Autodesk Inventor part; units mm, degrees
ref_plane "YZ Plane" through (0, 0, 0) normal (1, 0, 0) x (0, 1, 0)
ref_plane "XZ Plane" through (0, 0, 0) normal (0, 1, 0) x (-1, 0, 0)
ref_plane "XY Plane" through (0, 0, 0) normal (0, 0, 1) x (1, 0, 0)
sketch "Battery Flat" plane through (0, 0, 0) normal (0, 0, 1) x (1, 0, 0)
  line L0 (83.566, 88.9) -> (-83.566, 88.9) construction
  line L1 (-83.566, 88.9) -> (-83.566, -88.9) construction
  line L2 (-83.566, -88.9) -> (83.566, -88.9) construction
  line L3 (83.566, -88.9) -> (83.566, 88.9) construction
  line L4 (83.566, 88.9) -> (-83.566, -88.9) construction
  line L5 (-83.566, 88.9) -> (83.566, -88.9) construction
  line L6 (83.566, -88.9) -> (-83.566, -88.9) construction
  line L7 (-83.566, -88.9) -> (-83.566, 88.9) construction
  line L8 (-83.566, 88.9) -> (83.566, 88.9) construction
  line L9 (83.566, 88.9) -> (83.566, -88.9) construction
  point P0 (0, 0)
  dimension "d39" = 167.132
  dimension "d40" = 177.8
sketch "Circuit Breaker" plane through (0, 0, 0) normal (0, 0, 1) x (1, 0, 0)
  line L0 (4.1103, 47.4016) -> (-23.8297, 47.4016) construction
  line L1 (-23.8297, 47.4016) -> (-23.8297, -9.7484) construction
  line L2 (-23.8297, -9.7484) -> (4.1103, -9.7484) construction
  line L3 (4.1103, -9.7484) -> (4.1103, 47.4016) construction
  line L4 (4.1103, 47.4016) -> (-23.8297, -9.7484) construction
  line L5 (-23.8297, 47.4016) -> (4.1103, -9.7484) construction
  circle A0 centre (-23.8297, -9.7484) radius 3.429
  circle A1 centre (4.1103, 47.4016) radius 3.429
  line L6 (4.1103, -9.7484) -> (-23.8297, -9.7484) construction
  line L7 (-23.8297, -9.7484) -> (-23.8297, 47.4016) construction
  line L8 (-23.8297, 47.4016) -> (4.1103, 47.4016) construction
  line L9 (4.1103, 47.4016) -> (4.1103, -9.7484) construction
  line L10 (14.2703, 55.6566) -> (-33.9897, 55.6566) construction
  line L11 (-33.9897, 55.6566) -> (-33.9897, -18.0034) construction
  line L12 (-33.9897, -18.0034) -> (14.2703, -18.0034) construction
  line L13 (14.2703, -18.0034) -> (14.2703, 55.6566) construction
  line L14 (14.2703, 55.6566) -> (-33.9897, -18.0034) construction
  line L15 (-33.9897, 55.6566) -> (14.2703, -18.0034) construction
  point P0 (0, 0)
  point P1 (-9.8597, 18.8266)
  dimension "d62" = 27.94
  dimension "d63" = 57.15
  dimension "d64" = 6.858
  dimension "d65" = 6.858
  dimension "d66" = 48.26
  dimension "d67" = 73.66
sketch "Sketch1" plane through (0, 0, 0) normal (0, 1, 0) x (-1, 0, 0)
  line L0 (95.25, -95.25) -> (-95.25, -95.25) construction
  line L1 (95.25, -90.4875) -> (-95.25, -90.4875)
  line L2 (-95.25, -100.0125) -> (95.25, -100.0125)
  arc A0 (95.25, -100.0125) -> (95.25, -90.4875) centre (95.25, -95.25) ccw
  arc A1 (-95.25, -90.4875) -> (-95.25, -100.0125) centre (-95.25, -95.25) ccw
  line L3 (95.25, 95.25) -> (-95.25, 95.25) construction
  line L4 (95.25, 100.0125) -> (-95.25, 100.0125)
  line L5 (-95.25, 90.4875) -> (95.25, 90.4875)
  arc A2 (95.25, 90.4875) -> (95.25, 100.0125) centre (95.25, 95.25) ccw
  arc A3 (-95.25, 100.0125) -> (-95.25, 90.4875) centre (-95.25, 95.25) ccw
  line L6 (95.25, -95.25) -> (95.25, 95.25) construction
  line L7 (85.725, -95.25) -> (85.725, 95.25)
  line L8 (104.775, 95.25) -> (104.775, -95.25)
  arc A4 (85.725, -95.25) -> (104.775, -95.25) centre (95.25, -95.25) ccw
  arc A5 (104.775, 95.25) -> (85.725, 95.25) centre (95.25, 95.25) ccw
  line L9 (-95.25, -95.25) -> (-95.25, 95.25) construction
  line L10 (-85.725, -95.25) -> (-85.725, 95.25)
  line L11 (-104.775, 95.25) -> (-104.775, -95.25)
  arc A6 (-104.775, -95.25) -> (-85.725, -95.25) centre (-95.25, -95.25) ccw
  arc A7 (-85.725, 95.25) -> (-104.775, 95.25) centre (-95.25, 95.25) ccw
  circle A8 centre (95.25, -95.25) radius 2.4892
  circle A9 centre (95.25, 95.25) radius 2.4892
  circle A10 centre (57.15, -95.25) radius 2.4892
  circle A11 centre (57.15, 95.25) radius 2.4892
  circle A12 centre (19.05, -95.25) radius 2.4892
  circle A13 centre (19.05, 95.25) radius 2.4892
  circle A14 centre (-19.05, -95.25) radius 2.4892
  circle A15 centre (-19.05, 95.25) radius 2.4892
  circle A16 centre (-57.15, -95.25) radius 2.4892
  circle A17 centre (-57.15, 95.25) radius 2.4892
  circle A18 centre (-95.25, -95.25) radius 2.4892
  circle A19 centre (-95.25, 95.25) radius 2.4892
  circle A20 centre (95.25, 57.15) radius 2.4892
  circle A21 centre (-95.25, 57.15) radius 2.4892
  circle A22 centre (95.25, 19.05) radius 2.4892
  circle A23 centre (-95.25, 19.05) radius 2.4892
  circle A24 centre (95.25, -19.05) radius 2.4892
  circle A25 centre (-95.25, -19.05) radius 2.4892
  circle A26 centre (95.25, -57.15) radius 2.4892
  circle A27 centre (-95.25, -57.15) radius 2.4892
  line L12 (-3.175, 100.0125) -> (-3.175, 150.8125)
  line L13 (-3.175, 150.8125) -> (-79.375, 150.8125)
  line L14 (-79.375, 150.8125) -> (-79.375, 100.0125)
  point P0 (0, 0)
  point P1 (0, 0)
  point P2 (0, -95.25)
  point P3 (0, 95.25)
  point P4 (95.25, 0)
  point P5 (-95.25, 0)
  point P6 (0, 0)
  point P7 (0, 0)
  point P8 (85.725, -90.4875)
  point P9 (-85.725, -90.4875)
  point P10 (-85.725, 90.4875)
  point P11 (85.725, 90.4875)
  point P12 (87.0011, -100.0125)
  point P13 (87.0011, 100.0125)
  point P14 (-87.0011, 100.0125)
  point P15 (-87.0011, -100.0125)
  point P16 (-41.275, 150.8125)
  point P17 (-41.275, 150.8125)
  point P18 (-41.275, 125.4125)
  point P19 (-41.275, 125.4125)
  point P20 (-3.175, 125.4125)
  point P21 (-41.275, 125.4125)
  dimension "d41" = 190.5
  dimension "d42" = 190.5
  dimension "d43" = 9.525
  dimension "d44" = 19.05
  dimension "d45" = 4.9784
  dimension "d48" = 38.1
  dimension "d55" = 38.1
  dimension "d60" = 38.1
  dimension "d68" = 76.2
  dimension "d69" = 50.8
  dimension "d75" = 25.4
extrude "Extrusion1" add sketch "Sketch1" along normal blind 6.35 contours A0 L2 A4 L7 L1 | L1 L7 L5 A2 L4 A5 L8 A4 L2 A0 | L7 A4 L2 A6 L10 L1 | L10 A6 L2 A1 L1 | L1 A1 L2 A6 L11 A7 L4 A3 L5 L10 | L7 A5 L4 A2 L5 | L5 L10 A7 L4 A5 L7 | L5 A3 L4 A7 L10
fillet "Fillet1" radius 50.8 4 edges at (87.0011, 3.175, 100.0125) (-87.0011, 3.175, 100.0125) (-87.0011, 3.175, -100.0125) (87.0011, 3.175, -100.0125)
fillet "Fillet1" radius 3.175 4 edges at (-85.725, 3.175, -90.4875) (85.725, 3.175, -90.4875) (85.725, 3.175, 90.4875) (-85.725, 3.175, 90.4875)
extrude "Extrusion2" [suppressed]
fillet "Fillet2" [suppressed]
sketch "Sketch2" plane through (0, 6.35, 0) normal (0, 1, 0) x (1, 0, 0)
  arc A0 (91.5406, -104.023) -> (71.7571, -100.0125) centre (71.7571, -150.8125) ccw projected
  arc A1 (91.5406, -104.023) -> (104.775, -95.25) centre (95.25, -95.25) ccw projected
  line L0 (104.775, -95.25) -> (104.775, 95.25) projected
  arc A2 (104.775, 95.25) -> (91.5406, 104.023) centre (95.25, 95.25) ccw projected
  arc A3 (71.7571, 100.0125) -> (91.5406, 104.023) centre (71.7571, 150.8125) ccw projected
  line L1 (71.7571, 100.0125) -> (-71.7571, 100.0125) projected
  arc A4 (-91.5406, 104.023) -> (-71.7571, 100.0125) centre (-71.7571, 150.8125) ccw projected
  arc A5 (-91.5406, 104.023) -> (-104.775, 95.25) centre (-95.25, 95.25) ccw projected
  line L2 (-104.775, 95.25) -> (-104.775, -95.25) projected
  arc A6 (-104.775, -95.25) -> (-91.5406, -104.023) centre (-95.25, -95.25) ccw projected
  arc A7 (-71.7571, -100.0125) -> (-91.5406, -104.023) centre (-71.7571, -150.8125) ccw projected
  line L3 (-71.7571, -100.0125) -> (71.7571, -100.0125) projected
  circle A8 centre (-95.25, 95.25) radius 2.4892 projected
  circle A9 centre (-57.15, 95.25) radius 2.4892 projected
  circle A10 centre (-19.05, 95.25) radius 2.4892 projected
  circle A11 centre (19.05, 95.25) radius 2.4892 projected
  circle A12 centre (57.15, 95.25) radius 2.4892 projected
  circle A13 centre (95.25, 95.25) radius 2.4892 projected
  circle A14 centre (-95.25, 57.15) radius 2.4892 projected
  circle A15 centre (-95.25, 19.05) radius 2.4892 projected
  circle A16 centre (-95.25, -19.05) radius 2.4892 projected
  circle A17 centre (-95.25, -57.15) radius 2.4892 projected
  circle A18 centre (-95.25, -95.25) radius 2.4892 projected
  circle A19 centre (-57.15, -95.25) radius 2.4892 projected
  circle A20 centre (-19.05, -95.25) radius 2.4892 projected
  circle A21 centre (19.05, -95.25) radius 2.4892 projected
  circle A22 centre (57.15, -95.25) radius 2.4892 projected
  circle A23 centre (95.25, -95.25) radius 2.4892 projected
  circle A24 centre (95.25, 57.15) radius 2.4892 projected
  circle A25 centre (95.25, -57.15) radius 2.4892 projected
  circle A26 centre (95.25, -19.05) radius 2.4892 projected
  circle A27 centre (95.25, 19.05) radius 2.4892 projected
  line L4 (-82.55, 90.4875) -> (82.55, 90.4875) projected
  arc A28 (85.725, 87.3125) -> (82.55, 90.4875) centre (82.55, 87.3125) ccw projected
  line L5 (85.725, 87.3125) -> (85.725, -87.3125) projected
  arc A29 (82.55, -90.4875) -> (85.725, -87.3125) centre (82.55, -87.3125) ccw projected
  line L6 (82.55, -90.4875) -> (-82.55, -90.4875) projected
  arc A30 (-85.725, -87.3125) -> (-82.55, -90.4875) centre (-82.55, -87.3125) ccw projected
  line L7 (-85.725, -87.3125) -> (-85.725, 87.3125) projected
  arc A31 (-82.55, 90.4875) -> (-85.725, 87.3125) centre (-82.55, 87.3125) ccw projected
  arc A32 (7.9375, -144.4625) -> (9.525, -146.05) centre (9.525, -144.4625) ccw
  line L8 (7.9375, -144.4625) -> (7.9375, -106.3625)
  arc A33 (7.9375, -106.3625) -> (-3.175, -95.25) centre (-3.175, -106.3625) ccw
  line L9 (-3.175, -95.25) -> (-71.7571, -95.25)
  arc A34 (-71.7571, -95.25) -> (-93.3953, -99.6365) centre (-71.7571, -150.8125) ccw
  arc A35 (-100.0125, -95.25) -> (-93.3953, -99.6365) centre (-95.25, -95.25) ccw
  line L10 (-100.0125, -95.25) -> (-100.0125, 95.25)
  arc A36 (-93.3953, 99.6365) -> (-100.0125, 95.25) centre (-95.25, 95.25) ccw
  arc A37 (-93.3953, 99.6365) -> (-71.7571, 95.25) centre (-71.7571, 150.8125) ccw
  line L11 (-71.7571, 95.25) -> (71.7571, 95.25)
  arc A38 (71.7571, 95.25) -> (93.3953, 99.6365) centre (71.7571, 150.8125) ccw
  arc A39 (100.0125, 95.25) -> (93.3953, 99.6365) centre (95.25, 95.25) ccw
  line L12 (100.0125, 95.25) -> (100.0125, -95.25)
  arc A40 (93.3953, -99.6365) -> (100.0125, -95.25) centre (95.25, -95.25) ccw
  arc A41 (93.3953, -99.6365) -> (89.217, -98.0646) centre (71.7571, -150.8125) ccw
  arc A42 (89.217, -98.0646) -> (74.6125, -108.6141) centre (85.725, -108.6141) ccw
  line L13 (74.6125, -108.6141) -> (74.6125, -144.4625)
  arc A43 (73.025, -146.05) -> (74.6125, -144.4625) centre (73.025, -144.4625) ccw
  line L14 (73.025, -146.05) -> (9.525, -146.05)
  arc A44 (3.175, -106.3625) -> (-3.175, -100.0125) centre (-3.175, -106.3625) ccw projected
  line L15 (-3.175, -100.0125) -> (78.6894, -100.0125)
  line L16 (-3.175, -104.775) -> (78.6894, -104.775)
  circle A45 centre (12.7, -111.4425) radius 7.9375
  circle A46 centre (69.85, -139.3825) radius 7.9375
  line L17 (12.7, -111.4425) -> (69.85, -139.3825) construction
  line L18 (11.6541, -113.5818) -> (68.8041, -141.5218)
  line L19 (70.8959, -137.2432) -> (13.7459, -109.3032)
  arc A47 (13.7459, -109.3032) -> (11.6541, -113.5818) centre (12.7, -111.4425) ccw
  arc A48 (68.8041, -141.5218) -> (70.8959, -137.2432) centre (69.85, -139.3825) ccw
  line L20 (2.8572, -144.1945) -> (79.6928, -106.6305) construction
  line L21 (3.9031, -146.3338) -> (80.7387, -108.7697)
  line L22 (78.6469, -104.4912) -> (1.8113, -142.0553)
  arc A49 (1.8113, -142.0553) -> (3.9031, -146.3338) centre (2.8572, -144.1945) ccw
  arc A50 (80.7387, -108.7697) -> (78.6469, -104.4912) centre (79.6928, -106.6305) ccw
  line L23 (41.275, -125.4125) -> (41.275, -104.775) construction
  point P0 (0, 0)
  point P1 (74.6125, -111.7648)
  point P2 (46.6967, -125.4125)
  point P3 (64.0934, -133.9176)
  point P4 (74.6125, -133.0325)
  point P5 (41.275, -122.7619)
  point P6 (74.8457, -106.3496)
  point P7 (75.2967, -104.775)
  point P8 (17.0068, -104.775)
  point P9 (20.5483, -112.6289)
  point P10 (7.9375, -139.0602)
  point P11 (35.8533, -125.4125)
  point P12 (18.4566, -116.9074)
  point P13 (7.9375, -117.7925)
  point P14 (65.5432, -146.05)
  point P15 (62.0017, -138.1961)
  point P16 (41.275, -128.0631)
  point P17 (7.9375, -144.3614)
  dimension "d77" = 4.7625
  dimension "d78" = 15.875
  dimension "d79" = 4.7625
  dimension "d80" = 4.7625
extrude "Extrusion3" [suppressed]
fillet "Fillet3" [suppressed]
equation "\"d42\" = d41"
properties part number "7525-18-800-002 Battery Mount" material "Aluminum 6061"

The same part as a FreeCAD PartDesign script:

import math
import FreeCAD as App
import Part
import Sketcher
from FreeCAD import Vector
Q = App.Units.Quantity


def edges_at(feature, points):
    """Names of the edges that pass closest to the given points."""
    edges = feature.Shape.Edges
    near = lambda p: min(range(len(edges)), key=lambda i: edges[i].distToShape(Part.Vertex(*p))[0])
    return sorted({f"Edge{near(p) + 1}" for p in points})

doc = App.newDocument("Part")
body = doc.addObject("PartDesign::Body", "Body")

sketch1 = body.newObject("Sketcher::SketchObject", "Sketch")
sketch1.AttachmentSupport = (doc.getObject("XZ_Plane"), [""])
sketch1.MapMode = "FlatFace"
sketch1.addGeometry([
    Part.ArcOfCircle(Part.Circle(Vector(-95.2, 95.2, 0), Vector(0, 0, 1), 9.5), math.radians(30), math.radians(180)),
    Part.LineSegment(Vector(-87, 100, 0), Vector(87, 100, 0)),
    Part.ArcOfCircle(Part.Circle(Vector(95.2, 95.2, 0), Vector(0, 0, 1), 9.5), math.radians(0), math.radians(150)),
    Part.LineSegment(Vector(104.8, 95.2, 0), Vector(104.8, -95.2, 0)),
    Part.ArcOfCircle(Part.Circle(Vector(95.2, -95.2, 0), Vector(0, 0, 1), 9.5), math.radians(-150), math.radians(0)),
    Part.LineSegment(Vector(87, -100, 0), Vector(-87, -100, 0)),
    Part.ArcOfCircle(Part.Circle(Vector(-95.2, -95.2, 0), Vector(0, 0, 1), 9.5), math.radians(180), math.radians(330)),
    Part.LineSegment(Vector(-104.8, -95.2, 0), Vector(-104.8, 95.2, 0)),
    Part.Circle(Vector(-95.2, -95.2, 0), Vector(0, 0, 1), 2.5),
    Part.Circle(Vector(-95.2, -19.1, 0), Vector(0, 0, 1), 2.5),
    Part.LineSegment(Vector(-85.7, 90.5, 0), Vector(-85.7, -90.5, 0)),
    Part.LineSegment(Vector(-85.7, -90.5, 0), Vector(85.7, -90.5, 0)),
    Part.LineSegment(Vector(85.7, -90.5, 0), Vector(85.7, 90.5, 0)),
    Part.LineSegment(Vector(85.7, 90.5, 0), Vector(-85.7, 90.5, 0)),
    Part.Circle(Vector(-95.2, 19.1, 0), Vector(0, 0, 1), 2.5),
    Part.Circle(Vector(-95.2, 57.1, 0), Vector(0, 0, 1), 2.5),
    Part.Circle(Vector(-95.2, -57.1, 0), Vector(0, 0, 1), 2.5),
    Part.Circle(Vector(-19.1, -95.2, 0), Vector(0, 0, 1), 2.5),
    Part.Circle(Vector(-57.1, -95.2, 0), Vector(0, 0, 1), 2.5),
    Part.Circle(Vector(57.1, -95.2, 0), Vector(0, 0, 1), 2.5),
    Part.Circle(Vector(19.1, -95.2, 0), Vector(0, 0, 1), 2.5),
    Part.Circle(Vector(-95.2, 95.2, 0), Vector(0, 0, 1), 2.5),
    Part.Circle(Vector(95.2, -95.2, 0), Vector(0, 0, 1), 2.5),
    Part.Circle(Vector(-19.1, 95.2, 0), Vector(0, 0, 1), 2.5),
    Part.Circle(Vector(-57.1, 95.2, 0), Vector(0, 0, 1), 2.5),
    Part.Circle(Vector(57.1, 95.2, 0), Vector(0, 0, 1), 2.5),
    Part.Circle(Vector(19.1, 95.2, 0), Vector(0, 0, 1), 2.5),
    Part.Circle(Vector(95.2, 57.1, 0), Vector(0, 0, 1), 2.5),
    Part.Circle(Vector(95.2, -19.1, 0), Vector(0, 0, 1), 2.5),
    Part.Circle(Vector(95.2, 19.1, 0), Vector(0, 0, 1), 2.5),
    Part.Circle(Vector(95.2, -57.1, 0), Vector(0, 0, 1), 2.5),
    Part.Circle(Vector(95.2, 95.2, 0), Vector(0, 0, 1), 2.5),
], False)
sketch1.addConstraint([
    Sketcher.Constraint("Coincident", 0, 1, 1, 1),
    Sketcher.Constraint("Coincident", 1, 2, 2, 2),
    Sketcher.Constraint("Tangent", 2, 1, 3, 1),
    Sketcher.Constraint("Tangent", 3, 2, 4, 2),
    Sketcher.Constraint("Coincident", 4, 1, 5, 1),
    Sketcher.Constraint("Coincident", 5, 2, 6, 2),
    Sketcher.Constraint("Tangent", 6, 1, 7, 1),
    Sketcher.Constraint("Tangent", 7, 2, 0, 2),
    Sketcher.Constraint("Coincident", 10, 2, 11, 1),
    Sketcher.Constraint("Coincident", 11, 2, 12, 1),
    Sketcher.Constraint("Coincident", 12, 2, 13, 1),
    Sketcher.Constraint("Coincident", 13, 2, 10, 1),
    Sketcher.Constraint("Horizontal", 1),
    Sketcher.Constraint("Vertical", 3),
    Sketcher.Constraint("Horizontal", 5),
    Sketcher.Constraint("Vertical", 7),
    Sketcher.Constraint("Vertical", 10),
    Sketcher.Constraint("Horizontal", 11),
    Sketcher.Constraint("Vertical", 12),
    Sketcher.Constraint("Horizontal", 13),
    Sketcher.Constraint("Coincident", 8, 3, 6, 3),
    Sketcher.Constraint("Coincident", 21, 3, 0, 3),
    Sketcher.Constraint("Coincident", 22, 3, 4, 3),
    Sketcher.Constraint("Coincident", 31, 3, 2, 3),
    Sketcher.Constraint("Equal", 0, 2),
    Sketcher.Constraint("Equal", 2, 4),
    Sketcher.Constraint("Equal", 4, 6),
    Sketcher.Constraint("Equal", 8, 9),
    Sketcher.Constraint("Equal", 9, 14),
    Sketcher.Constraint("Equal", 14, 15),
    Sketcher.Constraint("Equal", 15, 16),
    Sketcher.Constraint("Equal", 16, 17),
    Sketcher.Constraint("Equal", 17, 18),
    Sketcher.Constraint("Equal", 18, 19),
    Sketcher.Constraint("Equal", 19, 20),
    Sketcher.Constraint("Equal", 20, 21),
    Sketcher.Constraint("Equal", 21, 22),
    Sketcher.Constraint("Equal", 22, 23),
    Sketcher.Constraint("Equal", 23, 24),
    Sketcher.Constraint("Equal", 24, 25),
    Sketcher.Constraint("Equal", 25, 26),
    Sketcher.Constraint("Equal", 26, 27),
    Sketcher.Constraint("Equal", 27, 28),
    Sketcher.Constraint("Equal", 28, 29),
    Sketcher.Constraint("Equal", 29, 30),
    Sketcher.Constraint("Equal", 30, 31),
    Sketcher.Constraint("Symmetric", 0, 3, 4, 3, -1, 1),
    Sketcher.Constraint("Symmetric", 20, 3, 23, 3, -1, 1),
    Sketcher.Constraint("Symmetric", 19, 3, 24, 3, -1, 1),
    Sketcher.Constraint("Symmetric", 18, 3, 25, 3, -1, 1),
    Sketcher.Constraint("Symmetric", 17, 3, 26, 3, -1, 1),
    Sketcher.Constraint("Symmetric", 16, 3, 27, 3, -1, 1),
    Sketcher.Constraint("Symmetric", 14, 3, 28, 3, -1, 1),
    Sketcher.Constraint("Symmetric", 9, 3, 29, 3, -1, 1),
    Sketcher.Constraint("Symmetric", 15, 3, 30, 3, -1, 1),
    Sketcher.Constraint("Symmetric", 1, 2, 5, 2, -1, 1),
    Sketcher.Constraint("Symmetric", 10, 2, 12, 2, -1, 1),
    Sketcher.Constraint("Symmetric", 18, 3, 19, 3, -2),
    Sketcher.Constraint("Symmetric", 17, 3, 20, 3, -2),
    Sketcher.Constraint("Symmetric", 15, 3, 27, 3, -2),
    Sketcher.Constraint("Symmetric", 9, 3, 28, 3, -2),
    Sketcher.Constraint("Horizontal", 0, 3, 2, 3),
    Sketcher.Constraint("Horizontal", 8, 3, 17, 3),
    Sketcher.Constraint("Horizontal", 17, 3, 18, 3),
    Sketcher.Constraint("Vertical", 8, 3, 9, 3),
    Sketcher.Constraint("Vertical", 14, 3, 15, 3),
    Sketcher.Constraint("Diameter", 8, Q("0.196 in")),
    Sketcher.Constraint("DistanceY", 3, 2, 3, 1, Q("7.5 in")),
    Sketcher.Constraint("Radius", 0, Q("0.375 in")),
    Sketcher.Constraint("DistanceY", 6, 3, 9, 3, Q("3 in")),
    Sketcher.Constraint("DistanceY", 9, 3, 15, 3, Q("3 in")),
    Sketcher.Constraint("DistanceX", 6, 3, 17, 3, Q("3 in")),
    Sketcher.Constraint("DistanceX", 17, 3, 19, 3, Q("3 in")),
    Sketcher.Constraint("DistanceX", 0, 3, 2, 3, Q("7.5 in")),
    Sketcher.Constraint("DistanceX", 6, 1, 10, 2, Q("0.75 in")),
    Sketcher.Constraint("DistanceY", 5, 2, 10, 2, Q("0.375 in")),
    Sketcher.Constraint("DistanceY", 10, 2, 10, 1, Q("7.125 in")),
])
pad1 = body.newObject("PartDesign::Pad", "Pad")
pad1.Profile = sketch1
pad1.Length = Q("0.25 in")
pad1.Reversed = True
doc.recompute()

fillet = body.newObject("PartDesign::Fillet", "Fillet")
fillet.Base = (pad1, edges_at(pad1, [
    (87.001, 3.175, 100.013),
    (-87.001, 3.175, 100.013),
    (-87.001, 3.175, -100.013),
    (87.001, 3.175, -100.013),
]))
fillet.Radius = Q("2 in")
doc.recompute()

fillet2 = body.newObject("PartDesign::Fillet", "Fillet001")
fillet2.Base = (fillet, edges_at(fillet, [
    (-85.725, 3.175, -90.487),
    (85.725, 3.175, -90.487),
    (85.725, 3.175, 90.487),
    (-85.725, 3.175, 90.487),
]))
fillet2.Radius = Q("0.125 in")

doc.recompute()
